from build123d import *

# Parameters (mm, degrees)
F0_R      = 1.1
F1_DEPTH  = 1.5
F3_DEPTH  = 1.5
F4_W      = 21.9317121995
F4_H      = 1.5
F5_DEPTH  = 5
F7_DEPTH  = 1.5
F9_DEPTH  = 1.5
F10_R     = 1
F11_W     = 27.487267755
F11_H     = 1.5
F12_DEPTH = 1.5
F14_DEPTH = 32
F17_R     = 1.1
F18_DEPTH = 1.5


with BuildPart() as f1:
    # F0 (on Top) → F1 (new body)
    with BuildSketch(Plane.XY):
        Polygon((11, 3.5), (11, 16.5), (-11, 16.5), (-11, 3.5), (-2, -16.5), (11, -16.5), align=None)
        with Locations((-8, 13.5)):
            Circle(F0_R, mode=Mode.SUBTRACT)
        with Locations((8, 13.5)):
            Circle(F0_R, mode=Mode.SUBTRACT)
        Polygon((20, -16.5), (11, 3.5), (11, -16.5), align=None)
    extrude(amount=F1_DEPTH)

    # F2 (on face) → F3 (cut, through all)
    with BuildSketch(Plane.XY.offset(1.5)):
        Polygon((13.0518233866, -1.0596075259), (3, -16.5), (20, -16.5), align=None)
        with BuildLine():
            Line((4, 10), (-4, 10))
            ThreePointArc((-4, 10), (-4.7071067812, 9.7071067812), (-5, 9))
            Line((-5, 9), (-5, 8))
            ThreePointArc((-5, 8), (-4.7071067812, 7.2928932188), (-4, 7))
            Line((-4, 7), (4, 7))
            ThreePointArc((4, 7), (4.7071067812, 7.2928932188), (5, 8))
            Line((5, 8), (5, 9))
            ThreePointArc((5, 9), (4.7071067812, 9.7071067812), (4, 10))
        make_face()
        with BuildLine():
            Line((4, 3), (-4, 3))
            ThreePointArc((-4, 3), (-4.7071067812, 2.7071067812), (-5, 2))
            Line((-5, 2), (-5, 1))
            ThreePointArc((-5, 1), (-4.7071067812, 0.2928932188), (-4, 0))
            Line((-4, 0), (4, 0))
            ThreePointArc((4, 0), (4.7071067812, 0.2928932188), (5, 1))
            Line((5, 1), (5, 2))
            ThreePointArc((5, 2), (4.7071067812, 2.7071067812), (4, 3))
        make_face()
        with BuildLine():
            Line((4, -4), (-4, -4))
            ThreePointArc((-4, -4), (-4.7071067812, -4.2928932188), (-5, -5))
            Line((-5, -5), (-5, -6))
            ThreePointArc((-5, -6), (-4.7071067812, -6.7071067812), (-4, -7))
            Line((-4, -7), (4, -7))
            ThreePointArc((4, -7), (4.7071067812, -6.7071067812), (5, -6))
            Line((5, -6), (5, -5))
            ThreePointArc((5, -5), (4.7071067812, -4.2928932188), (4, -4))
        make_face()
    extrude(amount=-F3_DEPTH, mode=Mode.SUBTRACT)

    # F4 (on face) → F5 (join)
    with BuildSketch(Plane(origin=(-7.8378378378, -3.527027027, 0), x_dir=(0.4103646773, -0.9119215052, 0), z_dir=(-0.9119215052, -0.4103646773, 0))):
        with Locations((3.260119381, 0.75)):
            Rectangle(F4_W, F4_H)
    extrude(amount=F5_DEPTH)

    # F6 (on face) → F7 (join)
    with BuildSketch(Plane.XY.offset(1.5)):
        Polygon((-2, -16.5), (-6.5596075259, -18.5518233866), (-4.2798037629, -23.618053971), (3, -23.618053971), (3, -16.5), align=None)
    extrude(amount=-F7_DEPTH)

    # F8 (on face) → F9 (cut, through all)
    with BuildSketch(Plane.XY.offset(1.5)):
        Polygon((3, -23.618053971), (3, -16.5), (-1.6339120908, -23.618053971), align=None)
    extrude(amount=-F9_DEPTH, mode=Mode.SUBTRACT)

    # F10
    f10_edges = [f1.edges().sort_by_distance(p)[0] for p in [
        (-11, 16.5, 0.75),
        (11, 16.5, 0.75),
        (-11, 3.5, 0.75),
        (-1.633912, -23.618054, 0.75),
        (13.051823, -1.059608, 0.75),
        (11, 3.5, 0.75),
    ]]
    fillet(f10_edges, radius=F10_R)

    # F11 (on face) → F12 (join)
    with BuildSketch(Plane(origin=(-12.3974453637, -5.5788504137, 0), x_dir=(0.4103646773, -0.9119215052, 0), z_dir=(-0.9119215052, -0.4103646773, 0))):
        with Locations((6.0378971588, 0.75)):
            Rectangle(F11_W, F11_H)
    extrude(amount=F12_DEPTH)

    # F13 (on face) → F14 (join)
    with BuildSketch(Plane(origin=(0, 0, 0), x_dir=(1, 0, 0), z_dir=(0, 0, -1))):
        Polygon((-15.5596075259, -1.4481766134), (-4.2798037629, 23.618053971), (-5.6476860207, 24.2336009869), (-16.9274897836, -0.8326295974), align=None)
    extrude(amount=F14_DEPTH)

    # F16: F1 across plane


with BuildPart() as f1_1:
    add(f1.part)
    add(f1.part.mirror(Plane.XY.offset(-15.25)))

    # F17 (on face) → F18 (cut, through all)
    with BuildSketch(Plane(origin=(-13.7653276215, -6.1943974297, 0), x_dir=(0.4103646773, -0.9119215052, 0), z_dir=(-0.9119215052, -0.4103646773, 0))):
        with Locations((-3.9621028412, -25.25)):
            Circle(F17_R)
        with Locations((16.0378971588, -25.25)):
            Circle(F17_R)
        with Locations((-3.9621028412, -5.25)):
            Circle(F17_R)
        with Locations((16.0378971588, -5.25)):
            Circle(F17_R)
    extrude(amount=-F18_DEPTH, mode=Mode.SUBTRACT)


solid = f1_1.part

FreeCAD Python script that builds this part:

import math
import FreeCAD as App
import Part
import Sketcher
from FreeCAD import Vector


def edges_at(feature, points):
    """Names of the edges that pass closest to the given points."""
    edges = feature.Shape.Edges
    near = lambda p: min(range(len(edges)), key=lambda i: edges[i].distToShape(Part.Vertex(*p))[0])
    return sorted({f"Edge{near(p) + 1}" for p in points})

doc = App.newDocument("Part")
body = doc.addObject("PartDesign::Body", "Body")

sketch1 = body.newObject("Sketcher::SketchObject", "Sketch")
sketch1.AttachmentSupport = (doc.getObject("XY_Plane"), [""])
sketch1.MapMode = "FlatFace"
sketch1.addGeometry([
    Part.LineSegment(Vector(11, 16.5, 0), Vector(-11, 16.5, 0)),
    Part.LineSegment(Vector(-11, 16.5, 0), Vector(-11, 3.5, 0)),
    Part.LineSegment(Vector(-11, 3.5, 0), Vector(-2, -16.5, 0)),
    Part.LineSegment(Vector(-2, -16.5, 0), Vector(20, -16.5, 0)),
    Part.LineSegment(Vector(20, -16.5, 0), Vector(11, 3.5, 0)),
    Part.LineSegment(Vector(11, 3.5, 0), Vector(11, 16.5, 0)),
    Part.Circle(Vector(-8, 13.5, 0), Vector(0, 0, 1), 1.1),
    Part.Circle(Vector(8, 13.5, 0), Vector(0, 0, 1), 1.1),
], False)
sketch1.addConstraint([
    Sketcher.Constraint("Coincident", 0, 2, 1, 1),
    Sketcher.Constraint("Coincident", 1, 2, 2, 1),
    Sketcher.Constraint("Coincident", 2, 2, 3, 1),
    Sketcher.Constraint("Coincident", 3, 2, 4, 1),
    Sketcher.Constraint("Coincident", 4, 2, 5, 1),
    Sketcher.Constraint("Coincident", 5, 2, 0, 1),
    Sketcher.Constraint("Horizontal", 0),
    Sketcher.Constraint("Vertical", 1),
    Sketcher.Constraint("Horizontal", 3),
    Sketcher.Constraint("Vertical", 5),
    Sketcher.Constraint("Equal", 6, 7),
    Sketcher.Constraint("Symmetric", 6, 3, 7, 3, -2),
    Sketcher.Constraint("Symmetric", 1, 2, 4, 2, -2),
    Sketcher.Constraint("Parallel", 2, 4),
    Sketcher.Constraint("Diameter", 6, 2.2),
    Sketcher.Constraint("DistanceX", 0, 2, 0, 1, 22.0),
    Sketcher.Constraint("DistanceY", 1, 2, 1, 1, 13.0),
    Sketcher.Constraint("DistanceX", 6, 3, -1, 1, 8.0),
    Sketcher.Constraint("DistanceX", 2, 2, -1, 1, 2.0),
    Sketcher.Constraint("DistanceY", 6, 3, 0, 2, 3.0),
    Sketcher.Constraint("DistanceY", 2, 2, 1, 2, 20.0),
    Sketcher.Constraint("DistanceY", -1, 1, 6, 3, 13.5),
])
pad1 = body.newObject("PartDesign::Pad", "Pad")
pad1.Profile = sketch1
pad1.Length = 1.5

sketch2 = body.newObject("Sketcher::SketchObject", "Sketch001")
sketch2.AttachmentSupport = (doc.getObject("XY_Plane"), [""])
sketch2.MapMode = "FlatFace"
sketch2.AttachmentOffset = App.Placement(Vector(0, 0, 1.5), App.Rotation())
sketch2.addGeometry([
    Part.LineSegment(Vector(13.1, -1.1, 0), Vector(3, -16.5, 0)),
    Part.LineSegment(Vector(3, -16.5, 0), Vector(20, -16.5, 0)),
    Part.LineSegment(Vector(20, -16.5, 0), Vector(13.1, -1.1, 0)),
    Part.LineSegment(Vector(4, 10, 0), Vector(-4, 10, 0)),
    Part.ArcOfCircle(Part.Circle(Vector(-4, 9, 0), Vector(0, 0, 1), 1), math.radians(90), math.radians(180)),
    Part.LineSegment(Vector(-5, 9, 0), Vector(-5, 8, 0)),
    Part.ArcOfCircle(Part.Circle(Vector(-4, 8, 0), Vector(0, 0, 1), 1), math.radians(180), math.radians(270)),
    Part.LineSegment(Vector(-4, 7, 0), Vector(4, 7, 0)),
    Part.ArcOfCircle(Part.Circle(Vector(4, 8, 0), Vector(0, 0, 1), 1), math.radians(-90), math.radians(0)),
    Part.LineSegment(Vector(5, 8, 0), Vector(5, 9, 0)),
    Part.ArcOfCircle(Part.Circle(Vector(4, 9, 0), Vector(0, 0, 1), 1), math.radians(0), math.radians(90)),
    Part.LineSegment(Vector(4, 3, 0), Vector(-4, 3, 0)),
    Part.ArcOfCircle(Part.Circle(Vector(-4, 2, 0), Vector(0, 0, 1), 1), math.radians(90), math.radians(180)),
    Part.LineSegment(Vector(-5, 2, 0), Vector(-5, 1, 0)),
    Part.ArcOfCircle(Part.Circle(Vector(-4, 1, 0), Vector(0, 0, 1), 1), math.radians(180), math.radians(270)),
    Part.LineSegment(Vector(-4, 0, 0), Vector(4, 0, 0)),
    Part.ArcOfCircle(Part.Circle(Vector(4, 1, 0), Vector(0, 0, 1), 1), math.radians(-90), math.radians(0)),
    Part.LineSegment(Vector(5, 1, 0), Vector(5, 2, 0)),
    Part.ArcOfCircle(Part.Circle(Vector(4, 2, 0), Vector(0, 0, 1), 1), math.radians(0), math.radians(90)),
    Part.LineSegment(Vector(4, -4, 0), Vector(-4, -4, 0)),
    Part.ArcOfCircle(Part.Circle(Vector(-4, -5, 0), Vector(0, 0, 1), 1), math.radians(90), math.radians(180)),
    Part.LineSegment(Vector(-5, -5, 0), Vector(-5, -6, 0)),
    Part.ArcOfCircle(Part.Circle(Vector(-4, -6, 0), Vector(0, 0, 1), 1), math.radians(180), math.radians(270)),
    Part.LineSegment(Vector(-4, -7, 0), Vector(4, -7, 0)),
    Part.ArcOfCircle(Part.Circle(Vector(4, -6, 0), Vector(0, 0, 1), 1), math.radians(-90), math.radians(0)),
    Part.LineSegment(Vector(5, -6, 0), Vector(5, -5, 0)),
    Part.ArcOfCircle(Part.Circle(Vector(4, -5, 0), Vector(0, 0, 1), 1), math.radians(0), math.radians(90)),
], False)
sketch2.addConstraint([
    Sketcher.Constraint("Coincident", 0, 2, 1, 1),
    Sketcher.Constraint("Coincident", 1, 2, 2, 1),
    Sketcher.Constraint("Coincident", 2, 2, 0, 1),
    Sketcher.Constraint("Tangent", 3, 2, 4, 1),
    Sketcher.Constraint("Tangent", 4, 2, 5, 1),
    Sketcher.Constraint("Tangent", 5, 2, 6, 1),
    Sketcher.Constraint("Tangent", 6, 2, 7, 1),
    Sketcher.Constraint("Tangent", 7, 2, 8, 1),
    Sketcher.Constraint("Tangent", 8, 2, 9, 1),
    Sketcher.Constraint("Tangent", 9, 2, 10, 1),
    Sketcher.Constraint("Tangent", 10, 2, 3, 1),
    Sketcher.Constraint("Tangent", 11, 2, 12, 1),
    Sketcher.Constraint("Tangent", 12, 2, 13, 1),
    Sketcher.Constraint("Tangent", 13, 2, 14, 1),
    Sketcher.Constraint("Tangent", 14, 2, 15, 1),
    Sketcher.Constraint("Tangent", 15, 2, 16, 1),
    Sketcher.Constraint("Tangent", 16, 2, 17, 1),
    Sketcher.Constraint("Tangent", 17, 2, 18, 1),
    Sketcher.Constraint("Tangent", 18, 2, 11, 1),
    Sketcher.Constraint("Tangent", 19, 2, 20, 1),
    Sketcher.Constraint("Tangent", 20, 2, 21, 1),
    Sketcher.Constraint("Tangent", 21, 2, 22, 1),
    Sketcher.Constraint("Tangent", 22, 2, 23, 1),
    Sketcher.Constraint("Tangent", 23, 2, 24, 1),
    Sketcher.Constraint("Tangent", 24, 2, 25, 1),
    Sketcher.Constraint("Tangent", 25, 2, 26, 1),
    Sketcher.Constraint("Tangent", 26, 2, 19, 1),
    Sketcher.Constraint("Horizontal", 1),
    Sketcher.Constraint("Horizontal", 3),
    Sketcher.Constraint("Vertical", 5),
    Sketcher.Constraint("Horizontal", 7),
    Sketcher.Constraint("Vertical", 9),
    Sketcher.Constraint("Horizontal", 11),
    Sketcher.Constraint("Vertical", 13),
    Sketcher.Constraint("Horizontal", 15),
    Sketcher.Constraint("Vertical", 17),
    Sketcher.Constraint("Horizontal", 19),
    Sketcher.Constraint("Vertical", 21),
    Sketcher.Constraint("Horizontal", 23),
    Sketcher.Constraint("Vertical", 25),
    Sketcher.Constraint("Equal", 4, 6),
    Sketcher.Constraint("Equal", 6, 8),
    Sketcher.Constraint("Equal", 8, 10),
    Sketcher.Constraint("Equal", 10, 12),
    Sketcher.Constraint("Equal", 12, 14),
    Sketcher.Constraint("Equal", 14, 16),
    Sketcher.Constraint("Equal", 16, 18),
    Sketcher.Constraint("Equal", 18, 20),
    Sketcher.Constraint("Equal", 20, 22),
    Sketcher.Constraint("Equal", 22, 24),
    Sketcher.Constraint("Equal", 24, 26),
    Sketcher.Constraint("Symmetric", 14, 2, 15, 2, -1, 1),
    Sketcher.Constraint("Symmetric", 7, 2, 22, 2, -1, 1),
    Sketcher.Constraint("Vertical", 6, 3, 12, 3),
    Sketcher.Constraint("Vertical", 10, 3, 16, 3),
    Sketcher.Constraint("Vertical", 18, 3, 24, 3),
    Sketcher.Constraint("Equal", 9, 13),
    Sketcher.Constraint("Equal", 17, 21),
    Sketcher.Constraint("Radius", 4, 1.0),
    Sketcher.Constraint("DistanceX", 1, 1, 1, 2, 17.0),
    Sketcher.Constraint("DistanceX", 3, 2, 3, 1, 8.0),
    Sketcher.Constraint("DistanceY", 5, 2, 5, 1, 1.0),
    Sketcher.Constraint("DistanceY", -1, 1, 4, 3, 9.0),
    Sketcher.Constraint("DistanceX", -1, 1, 0, 2, 3.0),
    Sketcher.Constraint("DistanceY", 0, 2, -1, 1, 16.5),
    Sketcher.Constraint("Distance", 0, 18.42403),
    Sketcher.Constraint("Distance", 2, 16.931712),
])
pocket1 = body.newObject("PartDesign::Pocket", "Pocket")
pocket1.Profile = sketch2
pocket1.Type = "ThroughAll"

sketch3 = body.newObject("Sketcher::SketchObject", "Sketch002")
sketch3.Placement = App.Placement(Vector(-7.837838, -3.527027, 0), App.Rotation(Vector(0.410364677, -0.911921505, 0), Vector(0, 0, 0.999999999), Vector(-0.911921505, -0.410364677, 0), "ZXY"))
sketch3.addGeometry([
    Part.LineSegment(Vector(-7.7, 1.5, 0), Vector(-7.7, 0, 0)),
    Part.LineSegment(Vector(-7.7, 0, 0), Vector(14.2, 0, 0)),
    Part.LineSegment(Vector(14.2, 0, 0), Vector(14.2, 1.5, 0)),
    Part.LineSegment(Vector(14.2, 1.5, 0), Vector(-7.7, 1.5, 0)),
], False)
sketch3.addConstraint([
    Sketcher.Constraint("Coincident", 0, 2, 1, 1),
    Sketcher.Constraint("Coincident", 1, 2, 2, 1),
    Sketcher.Constraint("Coincident", 2, 2, 3, 1),
    Sketcher.Constraint("Coincident", 3, 2, 0, 1),
    Sketcher.Constraint("Vertical", 0),
    Sketcher.Constraint("Horizontal", 1),
    Sketcher.Constraint("Vertical", 2),
    Sketcher.Constraint("Horizontal", 3),
    Sketcher.Constraint("PointOnObject", 0, 2, -1),
    Sketcher.Constraint("DistanceY", 0, 2, 0, 1, 1.5),
    Sketcher.Constraint("DistanceX", 1, 1, 1, 2, 21.931712),
    Sketcher.Constraint("DistanceX", 0, 2, -1, 1, 7.705737),
])
pad2 = body.newObject("PartDesign::Pad", "Pad001")
pad2.Profile = sketch3
pad2.Length = 5

sketch4 = body.newObject("Sketcher::SketchObject", "Sketch003")
sketch4.AttachmentSupport = (doc.getObject("XY_Plane"), [""])
sketch4.MapMode = "FlatFace"
sketch4.AttachmentOffset = App.Placement(Vector(0, 0, 1.5), App.Rotation())
sketch4.addGeometry([
    Part.LineSegment(Vector(-2, -16, 0), Vector(-7, -19, 0)),
    Part.LineSegment(Vector(-7, -19, 0), Vector(-4, -24, 0)),
    Part.LineSegment(Vector(-4, -24, 0), Vector(3, -24, 0)),
    Part.LineSegment(Vector(3, -24, 0), Vector(3, -16, 0)),
    Part.LineSegment(Vector(3, -16, 0), Vector(-2, -16, 0)),
], False)
sketch4.addConstraint([
    Sketcher.Constraint("Coincident", 0, 2, 1, 1),
    Sketcher.Constraint("Coincident", 1, 2, 2, 1),
    Sketcher.Constraint("Coincident", 2, 2, 3, 1),
    Sketcher.Constraint("Coincident", 3, 2, 4, 1),
    Sketcher.Constraint("Coincident", 4, 2, 0, 1),
    Sketcher.Constraint("Horizontal", 2),
    Sketcher.Constraint("Vertical", 3),
    Sketcher.Constraint("Horizontal", 4),
    Sketcher.Constraint("Perpendicular", 0, 1),
    Sketcher.Constraint("DistanceX", 4, 2, 4, 1, 5.0),
    Sketcher.Constraint("Distance", 0, 5.0),
    Sketcher.Constraint("DistanceX", -1, 1, 2, 2, 3.0),
    Sketcher.Constraint("DistanceY", 3, 2, -1, 1, 16.5),
    Sketcher.Constraint("DistanceX", 2, 1, 2, 2, 7.279804),
    Sketcher.Constraint("DistanceY", 3, 1, 3, 2, 7.118054),
])
pad3 = body.newObject("PartDesign::Pad", "Pad002")
pad3.Profile = sketch4
pad3.Length = 1.5
pad3.Reversed = True

sketch5 = body.newObject("Sketcher::SketchObject", "Sketch004")
sketch5.AttachmentSupport = (doc.getObject("XY_Plane"), [""])
sketch5.MapMode = "FlatFace"
sketch5.AttachmentOffset = App.Placement(Vector(0, 0, 1.5), App.Rotation())
sketch5.addGeometry([
    Part.LineSegment(Vector(3, -23.6, 0), Vector(3, -16.5, 0)),
    Part.LineSegment(Vector(3, -16.5, 0), Vector(-1.6, -23.6, 0)),
    Part.LineSegment(Vector(-1.6, -23.6, 0), Vector(3, -23.6, 0)),
], False)
sketch5.addConstraint([
    Sketcher.Constraint("Coincident", 0, 2, 1, 1),
    Sketcher.Constraint("Coincident", 1, 2, 2, 1),
    Sketcher.Constraint("Coincident", 2, 2, 0, 1),
    Sketcher.Constraint("Vertical", 0),
    Sketcher.Constraint("Horizontal", 2),
    Sketcher.Constraint("DistanceX", -1, 1, 0, 2, 3.0),
    Sketcher.Constraint("DistanceY", 0, 2, -1, 1, 16.5),
    Sketcher.Constraint("DistanceX", 2, 1, 2, 2, 4.633912),
    Sketcher.Constraint("DistanceY", 0, 1, 0, 2, 7.118054),
])
pocket2 = body.newObject("PartDesign::Pocket", "Pocket001")
pocket2.Profile = sketch5
pocket2.Type = "ThroughAll"
doc.recompute()

fillet = body.newObject("PartDesign::Fillet", "Fillet")
fillet.Base = (pocket2, edges_at(pocket2, [
    (-11, 16.5, 0.75),
    (11, 16.5, 0.75),
    (-11, 3.5, 0.75),
    (-1.634, -23.618, 0.75),
    (13.052, -1.06, 0.75),
    (11, 3.5, 0.75),
]))
fillet.Radius = 1

sketch6 = body.newObject("Sketcher::SketchObject", "Sketch005")
sketch6.Placement = App.Placement(Vector(-12.397445, -5.57885, 0), App.Rotation(Vector(0.410364677, -0.911921505, 0), Vector(0, 0, 0.999999999), Vector(-0.911921505, -0.410364677, 0), "ZXY"))
sketch6.addGeometry([
    Part.LineSegment(Vector(-7.7, 1.5, 0), Vector(-7.7, 0, 0)),
    Part.LineSegment(Vector(-7.7, 0, 0), Vector(19.8, 0, 0)),
    Part.LineSegment(Vector(19.8, 0, 0), Vector(19.8, 1.5, 0)),
    Part.LineSegment(Vector(19.8, 1.5, 0), Vector(-7.7, 1.5, 0)),
], False)
sketch6.addConstraint([
    Sketcher.Constraint("Coincident", 0, 2, 1, 1),
    Sketcher.Constraint("Coincident", 1, 2, 2, 1),
    Sketcher.Constraint("Coincident", 2, 2, 3, 1),
    Sketcher.Constraint("Coincident", 3, 2, 0, 1),
    Sketcher.Constraint("Vertical", 0),
    Sketcher.Constraint("Horizontal", 1),
    Sketcher.Constraint("Vertical", 2),
    Sketcher.Constraint("Horizontal", 3),
    Sketcher.Constraint("PointOnObject", 0, 2, -1),
    Sketcher.Constraint("DistanceY", 0, 2, 0, 1, 1.5),
    Sketcher.Constraint("DistanceX", 1, 1, 1, 2, 27.487268),
    Sketcher.Constraint("DistanceX", -1, 1, 1, 2, 19.781531),
])
pad4 = body.newObject("PartDesign::Pad", "Pad003")
pad4.Profile = sketch6
pad4.Length = 1.5

sketch7 = body.newObject("Sketcher::SketchObject", "Sketch006")
sketch7.AttachmentSupport = (doc.getObject("XY_Plane"), [""])
sketch7.MapMode = "FlatFace"
sketch7.addGeometry([
    Part.LineSegment(Vector(-15.6, 1.4, 0), Vector(-4.3, -23.6, 0)),
    Part.LineSegment(Vector(-4.3, -23.6, 0), Vector(-5.6, -24.2, 0)),
    Part.LineSegment(Vector(-5.6, -24.2, 0), Vector(-16.9, 0.8, 0)),
    Part.LineSegment(Vector(-16.9, 0.8, 0), Vector(-15.6, 1.4, 0)),
], False)
sketch7.addConstraint([
    Sketcher.Constraint("Coincident", 0, 2, 1, 1),
    Sketcher.Constraint("Coincident", 1, 2, 2, 1),
    Sketcher.Constraint("Coincident", 2, 2, 3, 1),
    Sketcher.Constraint("Coincident", 3, 2, 0, 1),
    Sketcher.Constraint("Perpendicular", 0, 1),
    Sketcher.Constraint("Perpendicular", 1, 2),
    Sketcher.Constraint("Perpendicular", 2, 3),
    Sketcher.Constraint("Distance", 1, 1.5),
    Sketcher.Constraint("DistanceY", 1, 2, -1, 1, 24.233601),
    Sketcher.Constraint("DistanceX", 2, 2, -1, 1, 16.92749),
    Sketcher.Constraint("DistanceY", -1, 1, 2, 2, 0.83263),
    Sketcher.Constraint("DistanceX", 3, 2, 1, 2, 9.911922),
])
pad5 = body.newObject("PartDesign::Pad", "Pad004")
pad5.Profile = sketch7
pad5.Length = 32
pad5.Reversed = True
body2 = doc.addObject("PartDesign::Body", "Body001")
doc.recompute()

body2.BaseFeature = body
doc.recompute()

mirroring = doc.addObject("Part::Mirroring", "Mirroring")
mirroring.Source = body
mirroring.Base = Vector(0, 0, -15.25)
mirroring.Normal = Vector(0, 0, 1)
body3 = doc.addObject("PartDesign::Body", "Body002")
body3.BaseFeature = mirroring
boolean = body2.newObject("PartDesign::Boolean", "Boolean")
boolean.Type = "Fuse"
boolean.addObjects([body3])
doc.recompute()

sketch8 = body2.newObject("Sketcher::SketchObject", "Sketch007")
sketch8.Placement = App.Placement(Vector(-13.765328, -6.194397, 0), App.Rotation(Vector(0.410364677, -0.911921505, 0), Vector(0, 0, 0.999999999), Vector(-0.911921505, -0.410364677, 0), "ZXY"))
sketch8.addGeometry([
    Part.Circle(Vector(-4, -25.2, 0), Vector(0, 0, 1), 1.1),
    Part.Circle(Vector(16, -25.2, 0), Vector(0, 0, 1), 1.1),
    Part.Circle(Vector(-4, -5.2, 0), Vector(0, 0, 1), 1.1),
    Part.Circle(Vector(16, -5.2, 0), Vector(0, 0, 1), 1.1),
], False)
sketch8.addConstraint([
    Sketcher.Constraint("Equal", 0, 1),
    Sketcher.Constraint("Equal", 1, 2),
    Sketcher.Constraint("Equal", 2, 3),
    Sketcher.Constraint("Horizontal", 0, 3, 1, 3),
    Sketcher.Constraint("Horizontal", 2, 3, 3, 3),
    Sketcher.Constraint("Vertical", 0, 3, 2, 3),
    Sketcher.Constraint("Vertical", 1, 3, 3, 3),
    Sketcher.Constraint("Diameter", 0, 2.2),
    Sketcher.Constraint("DistanceX", 0, 3, 1, 3, 20.0),
    Sketcher.Constraint("DistanceY", 0, 3, 2, 3, 20.0),
    Sketcher.Constraint("DistanceY", 0, 3, -1, 1, 25.25),
    Sketcher.Constraint("DistanceX", 0, 3, -1, 1, 3.962103),
])
pocket3 = body2.newObject("PartDesign::Pocket", "Pocket002")
pocket3.Profile = sketch8
pocket3.Type = "ThroughAll"
mirroring.Visibility = False

doc.recompute()
